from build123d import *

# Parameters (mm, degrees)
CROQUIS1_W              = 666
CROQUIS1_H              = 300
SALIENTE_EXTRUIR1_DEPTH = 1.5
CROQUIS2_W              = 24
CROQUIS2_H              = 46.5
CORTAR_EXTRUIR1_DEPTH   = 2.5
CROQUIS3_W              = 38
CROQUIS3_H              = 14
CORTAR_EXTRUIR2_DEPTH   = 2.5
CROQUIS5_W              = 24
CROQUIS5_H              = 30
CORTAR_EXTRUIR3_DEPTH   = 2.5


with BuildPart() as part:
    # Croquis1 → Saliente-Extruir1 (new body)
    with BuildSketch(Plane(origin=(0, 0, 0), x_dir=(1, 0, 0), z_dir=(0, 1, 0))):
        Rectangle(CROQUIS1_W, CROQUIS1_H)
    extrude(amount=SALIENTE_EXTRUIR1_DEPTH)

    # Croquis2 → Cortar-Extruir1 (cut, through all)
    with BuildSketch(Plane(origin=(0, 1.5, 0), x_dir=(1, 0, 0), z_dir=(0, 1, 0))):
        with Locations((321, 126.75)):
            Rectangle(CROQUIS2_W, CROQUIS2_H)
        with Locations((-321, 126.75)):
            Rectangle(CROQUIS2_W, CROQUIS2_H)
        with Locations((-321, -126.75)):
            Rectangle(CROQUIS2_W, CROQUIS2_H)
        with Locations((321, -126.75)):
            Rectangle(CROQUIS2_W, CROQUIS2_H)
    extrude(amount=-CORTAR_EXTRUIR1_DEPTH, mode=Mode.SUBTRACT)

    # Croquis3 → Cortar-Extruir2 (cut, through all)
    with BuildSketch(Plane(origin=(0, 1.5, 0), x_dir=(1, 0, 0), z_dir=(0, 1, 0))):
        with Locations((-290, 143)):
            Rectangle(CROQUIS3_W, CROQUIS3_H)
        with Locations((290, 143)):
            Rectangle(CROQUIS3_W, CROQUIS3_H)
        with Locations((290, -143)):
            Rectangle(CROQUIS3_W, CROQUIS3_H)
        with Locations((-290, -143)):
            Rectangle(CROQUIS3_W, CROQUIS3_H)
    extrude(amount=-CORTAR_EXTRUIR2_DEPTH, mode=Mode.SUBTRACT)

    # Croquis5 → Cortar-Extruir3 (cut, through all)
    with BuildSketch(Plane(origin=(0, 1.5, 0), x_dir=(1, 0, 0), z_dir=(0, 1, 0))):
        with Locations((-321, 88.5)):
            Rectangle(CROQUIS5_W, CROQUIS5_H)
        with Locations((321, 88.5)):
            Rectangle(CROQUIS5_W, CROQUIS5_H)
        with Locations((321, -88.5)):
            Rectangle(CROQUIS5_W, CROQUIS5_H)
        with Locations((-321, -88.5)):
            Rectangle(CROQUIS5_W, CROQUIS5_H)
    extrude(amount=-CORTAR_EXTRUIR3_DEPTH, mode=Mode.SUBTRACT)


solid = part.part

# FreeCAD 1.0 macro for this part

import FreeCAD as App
import Part
import Sketcher

V = App.Vector
Q = App.Units.Quantity

doc = App.newDocument("Part")
body = doc.addObject("PartDesign::Body", "Body")

sketch1 = body.newObject("Sketcher::SketchObject", "Sketch")
sketch1.AttachmentSupport = (doc.getObject("XZ_Plane"), [""])
sketch1.MapMode = "FlatFace"
sketch1.addGeometry(Part.LineSegment(V(-333, -150, 0), V(-333, 150, 0)), False)
sketch1.addGeometry(Part.LineSegment(V(-333, 150, 0), V(333, 150, 0)), False)
sketch1.addGeometry(Part.LineSegment(V(333, 150, 0), V(333, -150, 0)), False)
sketch1.addGeometry(Part.LineSegment(V(333, -150, 0), V(-333, -150, 0)), False)
sketch1.addConstraint(Sketcher.Constraint("Coincident", 0, 2, 1, 1))
sketch1.addConstraint(Sketcher.Constraint("Coincident", 1, 2, 2, 1))
sketch1.addConstraint(Sketcher.Constraint("Coincident", 2, 2, 3, 1))
sketch1.addConstraint(Sketcher.Constraint("Coincident", 3, 2, 0, 1))
sketch1.addConstraint(Sketcher.Constraint("Vertical", 0))
sketch1.addConstraint(Sketcher.Constraint("Horizontal", 1))
sketch1.addConstraint(Sketcher.Constraint("Vertical", 2))
sketch1.addConstraint(Sketcher.Constraint("Horizontal", 3))
sketch1.addConstraint(Sketcher.Constraint("Symmetric", 0, 2, 2, 2, -1, 1))
sketch1.addConstraint(Sketcher.Constraint("DistanceX", 1, 1, 1, 2, Q("666 mm")))
sketch1.addConstraint(Sketcher.Constraint("DistanceY", 0, 1, 0, 2, Q("300 mm")))
pad1 = body.newObject("PartDesign::Pad", "Pad")
pad1.Profile = sketch1
pad1.Length = 1.5
pad1.Reversed = True

sketch2 = body.newObject("Sketcher::SketchObject", "Sketch001")
sketch2.AttachmentSupport = (doc.getObject("XZ_Plane"), [""])
sketch2.MapMode = "FlatFace"
sketch2.AttachmentOffset = App.Placement(V(0, 0, -1.5), App.Rotation())
sketch2.addGeometry(Part.LineSegment(V(309, -150, 0), V(309, -104, 0)), False)
sketch2.addGeometry(Part.LineSegment(V(309, -104, 0), V(333, -104, 0)), False)
sketch2.addGeometry(Part.LineSegment(V(333, -104, 0), V(333, -150, 0)), False)
sketch2.addGeometry(Part.LineSegment(V(333, -150, 0), V(309, -150, 0)), False)
sketch2.addGeometry(Part.LineSegment(V(-333, -150, 0), V(-333, -104, 0)), False)
sketch2.addGeometry(Part.LineSegment(V(-333, -104, 0), V(-309, -104, 0)), False)
sketch2.addGeometry(Part.LineSegment(V(-309, -104, 0), V(-309, -150, 0)), False)
sketch2.addGeometry(Part.LineSegment(V(-309, -150, 0), V(-333, -150, 0)), False)
sketch2.addGeometry(Part.LineSegment(V(-333, 104, 0), V(-333, 150, 0)), False)
sketch2.addGeometry(Part.LineSegment(V(-333, 150, 0), V(-309, 150, 0)), False)
sketch2.addGeometry(Part.LineSegment(V(-309, 150, 0), V(-309, 104, 0)), False)
sketch2.addGeometry(Part.LineSegment(V(-309, 104, 0), V(-333, 104, 0)), False)
sketch2.addGeometry(Part.LineSegment(V(309, 104, 0), V(309, 150, 0)), False)
sketch2.addGeometry(Part.LineSegment(V(309, 150, 0), V(333, 150, 0)), False)
sketch2.addGeometry(Part.LineSegment(V(333, 150, 0), V(333, 104, 0)), False)
sketch2.addGeometry(Part.LineSegment(V(333, 104, 0), V(309, 104, 0)), False)
sketch2.addConstraint(Sketcher.Constraint("Coincident", 0, 2, 1, 1))
sketch2.addConstraint(Sketcher.Constraint("Coincident", 1, 2, 2, 1))
sketch2.addConstraint(Sketcher.Constraint("Coincident", 2, 2, 3, 1))
sketch2.addConstraint(Sketcher.Constraint("Coincident", 3, 2, 0, 1))
sketch2.addConstraint(Sketcher.Constraint("Coincident", 4, 2, 5, 1))
sketch2.addConstraint(Sketcher.Constraint("Coincident", 5, 2, 6, 1))
sketch2.addConstraint(Sketcher.Constraint("Coincident", 6, 2, 7, 1))
sketch2.addConstraint(Sketcher.Constraint("Coincident", 7, 2, 4, 1))
sketch2.addConstraint(Sketcher.Constraint("Coincident", 8, 2, 9, 1))
sketch2.addConstraint(Sketcher.Constraint("Coincident", 9, 2, 10, 1))
sketch2.addConstraint(Sketcher.Constraint("Coincident", 10, 2, 11, 1))
sketch2.addConstraint(Sketcher.Constraint("Coincident", 11, 2, 8, 1))
sketch2.addConstraint(Sketcher.Constraint("Coincident", 12, 2, 13, 1))
sketch2.addConstraint(Sketcher.Constraint("Coincident", 13, 2, 14, 1))
sketch2.addConstraint(Sketcher.Constraint("Coincident", 14, 2, 15, 1))
sketch2.addConstraint(Sketcher.Constraint("Coincident", 15, 2, 12, 1))
sketch2.addConstraint(Sketcher.Constraint("Vertical", 0))
sketch2.addConstraint(Sketcher.Constraint("Horizontal", 1))
sketch2.addConstraint(Sketcher.Constraint("Vertical", 2))
sketch2.addConstraint(Sketcher.Constraint("Horizontal", 3))
sketch2.addConstraint(Sketcher.Constraint("Vertical", 4))
sketch2.addConstraint(Sketcher.Constraint("Horizontal", 5))
sketch2.addConstraint(Sketcher.Constraint("Vertical", 6))
sketch2.addConstraint(Sketcher.Constraint("Horizontal", 7))
sketch2.addConstraint(Sketcher.Constraint("Vertical", 8))
sketch2.addConstraint(Sketcher.Constraint("Horizontal", 9))
sketch2.addConstraint(Sketcher.Constraint("Vertical", 10))
sketch2.addConstraint(Sketcher.Constraint("Horizontal", 11))
sketch2.addConstraint(Sketcher.Constraint("Vertical", 12))
sketch2.addConstraint(Sketcher.Constraint("Horizontal", 13))
sketch2.addConstraint(Sketcher.Constraint("Vertical", 14))
sketch2.addConstraint(Sketcher.Constraint("Horizontal", 15))
sketch2.addConstraint(Sketcher.Constraint("Symmetric", 2, 2, 8, 2, -1, 1))
sketch2.addConstraint(Sketcher.Constraint("Symmetric", 0, 2, 10, 2, -1, 1))
sketch2.addConstraint(Sketcher.Constraint("Symmetric", 6, 2, 12, 2, -1, 1))
sketch2.addConstraint(Sketcher.Constraint("Symmetric", 4, 2, 14, 2, -1, 1))
sketch2.addConstraint(Sketcher.Constraint("Symmetric", 1, 2, 4, 2, -2))
sketch2.addConstraint(Sketcher.Constraint("Symmetric", 3, 2, 6, 2, -2))
sketch2.addConstraint(Sketcher.Constraint("DistanceX", 1, 1, 1, 2, Q("24 mm")))
sketch2.addConstraint(Sketcher.Constraint("DistanceY", 0, 1, 0, 2, Q("46.5 mm")))
sketch2.addConstraint(Sketcher.Constraint("DistanceX", -1, 1, 0, 2, Q("309 mm")))
sketch2.addConstraint(Sketcher.Constraint("DistanceY", 2, 2, -1, 1, Q("150 mm")))
pocket1 = body.newObject("PartDesign::Pocket", "Pocket")
pocket1.Profile = sketch2
pocket1.Type = "ThroughAll"
pocket1.Reversed = True

sketch3 = body.newObject("Sketcher::SketchObject", "Sketch002")
sketch3.AttachmentSupport = (doc.getObject("XZ_Plane"), [""])
sketch3.MapMode = "FlatFace"
sketch3.AttachmentOffset = App.Placement(V(0, 0, -1.5), App.Rotation())
sketch3.addGeometry(Part.LineSegment(V(-309, -150, 0), V(-309, -136, 0)), False)
sketch3.addGeometry(Part.LineSegment(V(-309, -136, 0), V(-271, -136, 0)), False)
sketch3.addGeometry(Part.LineSegment(V(-271, -136, 0), V(-271, -150, 0)), False)
sketch3.addGeometry(Part.LineSegment(V(-271, -150, 0), V(-309, -150, 0)), False)
sketch3.addGeometry(Part.LineSegment(V(271, -150, 0), V(271, -136, 0)), False)
sketch3.addGeometry(Part.LineSegment(V(271, -136, 0), V(309, -136, 0)), False)
sketch3.addGeometry(Part.LineSegment(V(309, -136, 0), V(309, -150, 0)), False)
sketch3.addGeometry(Part.LineSegment(V(309, -150, 0), V(271, -150, 0)), False)
sketch3.addGeometry(Part.LineSegment(V(271, 136, 0), V(271, 150, 0)), False)
sketch3.addGeometry(Part.LineSegment(V(271, 150, 0), V(309, 150, 0)), False)
sketch3.addGeometry(Part.LineSegment(V(309, 150, 0), V(309, 136, 0)), False)
sketch3.addGeometry(Part.LineSegment(V(309, 136, 0), V(271, 136, 0)), False)
sketch3.addGeometry(Part.LineSegment(V(-309, 136, 0), V(-309, 150, 0)), False)
sketch3.addGeometry(Part.LineSegment(V(-309, 150, 0), V(-271, 150, 0)), False)
sketch3.addGeometry(Part.LineSegment(V(-271, 150, 0), V(-271, 136, 0)), False)
sketch3.addGeometry(Part.LineSegment(V(-271, 136, 0), V(-309, 136, 0)), False)
sketch3.addConstraint(Sketcher.Constraint("Coincident", 0, 2, 1, 1))
sketch3.addConstraint(Sketcher.Constraint("Coincident", 1, 2, 2, 1))
sketch3.addConstraint(Sketcher.Constraint("Coincident", 2, 2, 3, 1))
sketch3.addConstraint(Sketcher.Constraint("Coincident", 3, 2, 0, 1))
sketch3.addConstraint(Sketcher.Constraint("Coincident", 4, 2, 5, 1))
sketch3.addConstraint(Sketcher.Constraint("Coincident", 5, 2, 6, 1))
sketch3.addConstraint(Sketcher.Constraint("Coincident", 6, 2, 7, 1))
sketch3.addConstraint(Sketcher.Constraint("Coincident", 7, 2, 4, 1))
sketch3.addConstraint(Sketcher.Constraint("Coincident", 8, 2, 9, 1))
sketch3.addConstraint(Sketcher.Constraint("Coincident", 9, 2, 10, 1))
sketch3.addConstraint(Sketcher.Constraint("Coincident", 10, 2, 11, 1))
sketch3.addConstraint(Sketcher.Constraint("Coincident", 11, 2, 8, 1))
sketch3.addConstraint(Sketcher.Constraint("Coincident", 12, 2, 13, 1))
sketch3.addConstraint(Sketcher.Constraint("Coincident", 13, 2, 14, 1))
sketch3.addConstraint(Sketcher.Constraint("Coincident", 14, 2, 15, 1))
sketch3.addConstraint(Sketcher.Constraint("Coincident", 15, 2, 12, 1))
sketch3.addConstraint(Sketcher.Constraint("Vertical", 0))
sketch3.addConstraint(Sketcher.Constraint("Horizontal", 1))
sketch3.addConstraint(Sketcher.Constraint("Vertical", 2))
sketch3.addConstraint(Sketcher.Constraint("Horizontal", 3))
sketch3.addConstraint(Sketcher.Constraint("Vertical", 4))
sketch3.addConstraint(Sketcher.Constraint("Horizontal", 5))
sketch3.addConstraint(Sketcher.Constraint("Vertical", 6))
sketch3.addConstraint(Sketcher.Constraint("Horizontal", 7))
sketch3.addConstraint(Sketcher.Constraint("Vertical", 8))
sketch3.addConstraint(Sketcher.Constraint("Horizontal", 9))
sketch3.addConstraint(Sketcher.Constraint("Vertical", 10))
sketch3.addConstraint(Sketcher.Constraint("Horizontal", 11))
sketch3.addConstraint(Sketcher.Constraint("Vertical", 12))
sketch3.addConstraint(Sketcher.Constraint("Horizontal", 13))
sketch3.addConstraint(Sketcher.Constraint("Vertical", 14))
sketch3.addConstraint(Sketcher.Constraint("Horizontal", 15))
sketch3.addConstraint(Sketcher.Constraint("Symmetric", 2, 2, 8, 2, -1, 1))
sketch3.addConstraint(Sketcher.Constraint("Symmetric", 0, 2, 10, 2, -1, 1))
sketch3.addConstraint(Sketcher.Constraint("Symmetric", 6, 2, 12, 2, -1, 1))
sketch3.addConstraint(Sketcher.Constraint("Symmetric", 4, 2, 14, 2, -1, 1))
sketch3.addConstraint(Sketcher.Constraint("Symmetric", 1, 2, 4, 2, -2))
sketch3.addConstraint(Sketcher.Constraint("Symmetric", 3, 2, 6, 2, -2))
sketch3.addConstraint(Sketcher.Constraint("DistanceX", 1, 1, 1, 2, Q("38 mm")))
sketch3.addConstraint(Sketcher.Constraint("DistanceY", 0, 1, 0, 2, Q("14 mm")))
sketch3.addConstraint(Sketcher.Constraint("DistanceX", 0, 2, -1, 1, Q("309 mm")))
sketch3.addConstraint(Sketcher.Constraint("DistanceY", 0, 2, -1, 1, Q("136 mm")))
pocket2 = body.newObject("PartDesign::Pocket", "Pocket001")
pocket2.Profile = sketch3
pocket2.Type = "ThroughAll"
pocket2.Reversed = True

sketch4 = body.newObject("Sketcher::SketchObject", "Sketch003")
sketch4.AttachmentSupport = (doc.getObject("XZ_Plane"), [""])
sketch4.MapMode = "FlatFace"
sketch4.AttachmentOffset = App.Placement(V(0, 0, -1.5), App.Rotation())
sketch4.addGeometry(Part.LineSegment(V(-333, -104, 0), V(-333, -74, 0)), False)
sketch4.addGeometry(Part.LineSegment(V(-333, -74, 0), V(-309, -74, 0)), False)
sketch4.addGeometry(Part.LineSegment(V(-309, -74, 0), V(-309, -104, 0)), False)
sketch4.addGeometry(Part.LineSegment(V(-309, -104, 0), V(-333, -104, 0)), False)
sketch4.addGeometry(Part.LineSegment(V(309, -104, 0), V(309, -74, 0)), False)
sketch4.addGeometry(Part.LineSegment(V(309, -74, 0), V(333, -74, 0)), False)
sketch4.addGeometry(Part.LineSegment(V(333, -74, 0), V(333, -104, 0)), False)
sketch4.addGeometry(Part.LineSegment(V(333, -104, 0), V(309, -104, 0)), False)
sketch4.addGeometry(Part.LineSegment(V(309, 74, 0), V(309, 104, 0)), False)
sketch4.addGeometry(Part.LineSegment(V(309, 104, 0), V(333, 104, 0)), False)
sketch4.addGeometry(Part.LineSegment(V(333, 104, 0), V(333, 74, 0)), False)
sketch4.addGeometry(Part.LineSegment(V(333, 74, 0), V(309, 74, 0)), False)
sketch4.addGeometry(Part.LineSegment(V(-333, 74, 0), V(-333, 104, 0)), False)
sketch4.addGeometry(Part.LineSegment(V(-333, 104, 0), V(-309, 104, 0)), False)
sketch4.addGeometry(Part.LineSegment(V(-309, 104, 0), V(-309, 74, 0)), False)
sketch4.addGeometry(Part.LineSegment(V(-309, 74, 0), V(-333, 74, 0)), False)
sketch4.addConstraint(Sketcher.Constraint("Coincident", 0, 2, 1, 1))
sketch4.addConstraint(Sketcher.Constraint("Coincident", 1, 2, 2, 1))
sketch4.addConstraint(Sketcher.Constraint("Coincident", 2, 2, 3, 1))
sketch4.addConstraint(Sketcher.Constraint("Coincident", 3, 2, 0, 1))
sketch4.addConstraint(Sketcher.Constraint("Coincident", 4, 2, 5, 1))
sketch4.addConstraint(Sketcher.Constraint("Coincident", 5, 2, 6, 1))
sketch4.addConstraint(Sketcher.Constraint("Coincident", 6, 2, 7, 1))
sketch4.addConstraint(Sketcher.Constraint("Coincident", 7, 2, 4, 1))
sketch4.addConstraint(Sketcher.Constraint("Coincident", 8, 2, 9, 1))
sketch4.addConstraint(Sketcher.Constraint("Coincident", 9, 2, 10, 1))
sketch4.addConstraint(Sketcher.Constraint("Coincident", 10, 2, 11, 1))
sketch4.addConstraint(Sketcher.Constraint("Coincident", 11, 2, 8, 1))
sketch4.addConstraint(Sketcher.Constraint("Coincident", 12, 2, 13, 1))
sketch4.addConstraint(Sketcher.Constraint("Coincident", 13, 2, 14, 1))
sketch4.addConstraint(Sketcher.Constraint("Coincident", 14, 2, 15, 1))
sketch4.addConstraint(Sketcher.Constraint("Coincident", 15, 2, 12, 1))
sketch4.addConstraint(Sketcher.Constraint("Vertical", 0))
sketch4.addConstraint(Sketcher.Constraint("Horizontal", 1))
sketch4.addConstraint(Sketcher.Constraint("Vertical", 2))
sketch4.addConstraint(Sketcher.Constraint("Horizontal", 3))
sketch4.addConstraint(Sketcher.Constraint("Vertical", 4))
sketch4.addConstraint(Sketcher.Constraint("Horizontal", 5))
sketch4.addConstraint(Sketcher.Constraint("Vertical", 6))
sketch4.addConstraint(Sketcher.Constraint("Horizontal", 7))
sketch4.addConstraint(Sketcher.Constraint("Vertical", 8))
sketch4.addConstraint(Sketcher.Constraint("Horizontal", 9))
sketch4.addConstraint(Sketcher.Constraint("Vertical", 10))
sketch4.addConstraint(Sketcher.Constraint("Horizontal", 11))
sketch4.addConstraint(Sketcher.Constraint("Vertical", 12))
sketch4.addConstraint(Sketcher.Constraint("Horizontal", 13))
sketch4.addConstraint(Sketcher.Constraint("Vertical", 14))
sketch4.addConstraint(Sketcher.Constraint("Horizontal", 15))
sketch4.addConstraint(Sketcher.Constraint("Symmetric", 2, 2, 8, 2, -1, 1))
sketch4.addConstraint(Sketcher.Constraint("Symmetric", 0, 2, 10, 2, -1, 1))
sketch4.addConstraint(Sketcher.Constraint("Symmetric", 6, 2, 12, 2, -1, 1))
sketch4.addConstraint(Sketcher.Constraint("Symmetric", 4, 2, 14, 2, -1, 1))
sketch4.addConstraint(Sketcher.Constraint("Symmetric", 1, 2, 4, 2, -2))
sketch4.addConstraint(Sketcher.Constraint("Symmetric", 3, 2, 6, 2, -2))
sketch4.addConstraint(Sketcher.Constraint("DistanceX", 1, 1, 1, 2, Q("24 mm")))
sketch4.addConstraint(Sketcher.Constraint("DistanceY", 0, 1, 0, 2, Q("30 mm")))
sketch4.addConstraint(Sketcher.Constraint("DistanceX", 0, 2, -1, 1, Q("333 mm")))
sketch4.addConstraint(Sketcher.Constraint("DistanceY", 4, 2, 8, 2, Q("177 mm")))
pocket3 = body.newObject("PartDesign::Pocket", "Pocket002")
pocket3.Profile = sketch4
pocket3.Type = "ThroughAll"
pocket3.Reversed = True

doc.recompute()
